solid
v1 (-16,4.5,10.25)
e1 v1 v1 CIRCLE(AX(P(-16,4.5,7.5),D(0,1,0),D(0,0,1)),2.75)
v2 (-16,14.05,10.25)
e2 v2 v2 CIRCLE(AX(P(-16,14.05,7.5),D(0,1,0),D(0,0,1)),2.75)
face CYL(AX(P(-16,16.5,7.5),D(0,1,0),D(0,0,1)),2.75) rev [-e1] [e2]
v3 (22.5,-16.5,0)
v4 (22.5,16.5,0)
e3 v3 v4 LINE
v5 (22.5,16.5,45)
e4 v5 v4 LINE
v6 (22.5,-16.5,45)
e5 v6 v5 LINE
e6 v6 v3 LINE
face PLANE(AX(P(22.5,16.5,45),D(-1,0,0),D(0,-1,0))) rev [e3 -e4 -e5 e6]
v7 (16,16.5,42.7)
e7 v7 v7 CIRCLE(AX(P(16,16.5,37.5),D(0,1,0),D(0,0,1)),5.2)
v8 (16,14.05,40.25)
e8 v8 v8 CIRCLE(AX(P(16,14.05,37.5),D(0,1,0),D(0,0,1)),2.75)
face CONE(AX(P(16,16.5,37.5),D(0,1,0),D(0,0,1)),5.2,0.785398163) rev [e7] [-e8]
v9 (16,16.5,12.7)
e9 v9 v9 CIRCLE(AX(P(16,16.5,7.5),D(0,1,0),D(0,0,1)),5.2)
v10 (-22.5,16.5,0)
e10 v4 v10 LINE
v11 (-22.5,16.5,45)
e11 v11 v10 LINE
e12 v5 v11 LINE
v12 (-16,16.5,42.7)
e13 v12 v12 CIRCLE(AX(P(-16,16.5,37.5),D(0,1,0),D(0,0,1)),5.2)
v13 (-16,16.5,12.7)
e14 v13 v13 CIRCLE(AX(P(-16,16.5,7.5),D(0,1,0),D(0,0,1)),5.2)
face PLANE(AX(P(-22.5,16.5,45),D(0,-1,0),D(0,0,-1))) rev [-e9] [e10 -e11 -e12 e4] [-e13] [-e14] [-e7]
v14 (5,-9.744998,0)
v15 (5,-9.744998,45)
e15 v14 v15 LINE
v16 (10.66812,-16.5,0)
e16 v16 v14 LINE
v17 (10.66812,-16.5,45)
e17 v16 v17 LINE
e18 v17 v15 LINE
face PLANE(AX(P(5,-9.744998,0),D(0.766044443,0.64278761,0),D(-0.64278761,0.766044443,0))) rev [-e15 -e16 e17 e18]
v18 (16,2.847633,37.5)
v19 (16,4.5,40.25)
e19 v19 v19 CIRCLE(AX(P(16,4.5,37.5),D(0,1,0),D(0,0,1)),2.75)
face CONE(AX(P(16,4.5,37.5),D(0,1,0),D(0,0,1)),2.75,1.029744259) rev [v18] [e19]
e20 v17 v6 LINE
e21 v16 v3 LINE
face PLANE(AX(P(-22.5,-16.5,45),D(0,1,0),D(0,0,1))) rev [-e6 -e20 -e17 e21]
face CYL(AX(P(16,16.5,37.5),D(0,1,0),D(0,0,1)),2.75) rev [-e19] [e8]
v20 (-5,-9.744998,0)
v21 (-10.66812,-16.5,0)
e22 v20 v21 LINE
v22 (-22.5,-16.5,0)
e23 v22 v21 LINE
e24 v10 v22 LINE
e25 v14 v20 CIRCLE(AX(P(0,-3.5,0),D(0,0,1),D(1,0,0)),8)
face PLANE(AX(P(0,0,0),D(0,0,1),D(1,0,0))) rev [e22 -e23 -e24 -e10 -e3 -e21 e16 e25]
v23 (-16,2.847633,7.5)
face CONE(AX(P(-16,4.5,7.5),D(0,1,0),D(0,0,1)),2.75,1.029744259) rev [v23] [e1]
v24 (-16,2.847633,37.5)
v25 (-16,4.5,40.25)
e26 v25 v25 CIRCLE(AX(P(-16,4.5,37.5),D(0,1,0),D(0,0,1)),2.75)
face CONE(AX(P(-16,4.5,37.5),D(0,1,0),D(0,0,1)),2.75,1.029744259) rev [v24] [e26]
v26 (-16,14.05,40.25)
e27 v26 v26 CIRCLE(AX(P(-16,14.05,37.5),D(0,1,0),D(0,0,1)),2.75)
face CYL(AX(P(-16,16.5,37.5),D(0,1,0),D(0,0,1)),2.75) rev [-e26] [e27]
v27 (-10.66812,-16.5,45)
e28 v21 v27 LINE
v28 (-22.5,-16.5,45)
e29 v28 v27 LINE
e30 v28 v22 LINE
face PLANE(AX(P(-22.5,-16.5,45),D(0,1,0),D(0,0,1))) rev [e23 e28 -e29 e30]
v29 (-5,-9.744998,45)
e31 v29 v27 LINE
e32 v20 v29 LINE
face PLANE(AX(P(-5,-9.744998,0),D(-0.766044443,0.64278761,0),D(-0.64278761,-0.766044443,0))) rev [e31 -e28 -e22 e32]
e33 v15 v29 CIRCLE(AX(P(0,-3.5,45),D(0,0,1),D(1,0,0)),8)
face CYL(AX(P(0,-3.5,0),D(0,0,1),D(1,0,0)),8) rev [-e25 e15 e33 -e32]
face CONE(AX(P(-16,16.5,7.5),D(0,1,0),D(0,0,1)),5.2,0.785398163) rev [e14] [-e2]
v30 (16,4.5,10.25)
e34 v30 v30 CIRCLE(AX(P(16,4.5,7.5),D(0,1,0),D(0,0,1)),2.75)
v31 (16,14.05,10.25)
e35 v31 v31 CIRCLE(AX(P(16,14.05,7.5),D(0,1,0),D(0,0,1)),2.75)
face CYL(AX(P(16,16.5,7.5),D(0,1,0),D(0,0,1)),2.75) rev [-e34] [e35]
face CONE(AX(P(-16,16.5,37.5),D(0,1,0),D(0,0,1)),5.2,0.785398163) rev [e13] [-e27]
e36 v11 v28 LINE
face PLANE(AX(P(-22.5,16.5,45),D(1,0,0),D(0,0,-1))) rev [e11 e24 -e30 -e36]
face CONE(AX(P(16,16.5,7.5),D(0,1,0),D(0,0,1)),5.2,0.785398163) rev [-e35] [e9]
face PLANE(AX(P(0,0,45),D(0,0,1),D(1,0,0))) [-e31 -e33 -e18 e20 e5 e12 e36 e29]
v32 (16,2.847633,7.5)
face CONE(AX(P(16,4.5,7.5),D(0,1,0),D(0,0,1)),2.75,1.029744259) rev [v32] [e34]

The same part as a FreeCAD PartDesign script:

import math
import FreeCAD as App
import Part
import Sketcher

V = App.Vector
Q = App.Units.Quantity

doc = App.newDocument("Part")
params = doc.addObject("Spreadsheet::Sheet", "Params")
for row, (alias, value) in enumerate([
    ("sketch1_width", "45 mm"),
    ("sketch1_height", "33 mm"),
    ("pad1_length", "45 mm"),
    ("sketch2_radius", "8 mm"),
    ("pocket1_length", "45 mm"),
    ("sketch3_diameter", "5.5 mm"),
    ("hole_diameter", "5.5 mm"),
    ("hole_depth", "12 mm"),
    ("hole_csink_diameter", "10.4 mm"),
], start=1):
    params.set(f"A{row}", alias)
    params.set(f"B{row}", "=" + value)
    params.setAlias(f"B{row}", alias)

body = doc.addObject("PartDesign::Body", "Body")

# Sketch on XY plane
sketch1 = body.newObject("Sketcher::SketchObject", "Sketch")
sketch1.AttachmentSupport = (doc.getObject("XY_Plane"), [""])
sketch1.MapMode = "FlatFace"
sketch1.addGeometry(Part.LineSegment(V(-22, 16, 0), V(-22, -16, 0)), False)
sketch1.addGeometry(Part.LineSegment(V(-22, -16, 0), V(22, -16, 0)), False)
sketch1.addGeometry(Part.LineSegment(V(22, -16, 0), V(22, 16, 0)), False)
sketch1.addGeometry(Part.LineSegment(V(22, 16, 0), V(-22, 16, 0)), False)
sketch1.addConstraint(Sketcher.Constraint("Coincident", 0, 2, 1, 1))
sketch1.addConstraint(Sketcher.Constraint("Coincident", 1, 2, 2, 1))
sketch1.addConstraint(Sketcher.Constraint("Coincident", 2, 2, 3, 1))
sketch1.addConstraint(Sketcher.Constraint("Coincident", 3, 2, 0, 1))
sketch1.addConstraint(Sketcher.Constraint("Vertical", 0))
sketch1.addConstraint(Sketcher.Constraint("Horizontal", 1))
sketch1.addConstraint(Sketcher.Constraint("Vertical", 2))
sketch1.addConstraint(Sketcher.Constraint("Horizontal", 3))
sketch1.addConstraint(Sketcher.Constraint("Symmetric", 0, 2, 2, 2, -1, 1))
sketch1.addConstraint(Sketcher.Constraint("DistanceX", 1, 1, 1, 2, 45.0))
sketch1.addConstraint(Sketcher.Constraint("DistanceY", 0, 2, 0, 1, 33.0))
sketch1.setExpression("Constraints[9]", "Params.sketch1_width")
sketch1.setExpression("Constraints[10]", "Params.sketch1_height")
pad1 = body.newObject("PartDesign::Pad", "Pad")
pad1.Profile = sketch1
pad1.setExpression("Length", "Params.pad1_length")

# Sketch on XY plane
sketch2 = body.newObject("Sketcher::SketchObject", "Sketch001")
sketch2.AttachmentSupport = (doc.getObject("XY_Plane"), [""])
sketch2.MapMode = "FlatFace"
sketch2.AttachmentOffset = App.Placement(V(0, 0, 45), App.Rotation())
sketch2.addGeometry(Part.LineSegment(V(-5, -10, 0), V(-11, -16, 0)), False)
sketch2.addGeometry(Part.LineSegment(V(-11, -16, 0), V(11, -16, 0)), False)
sketch2.addGeometry(Part.LineSegment(V(11, -16, 0), V(5, -10, 0)), False)
sketch2.addGeometry(Part.ArcOfCircle(Part.Circle(V(0, -4, 0), V(0, 0, 1), 8), math.radians(-51), math.radians(231)), False)
sketch2.addConstraint(Sketcher.Constraint("Coincident", 0, 2, 1, 1))
sketch2.addConstraint(Sketcher.Constraint("Coincident", 1, 2, 2, 1))
sketch2.addConstraint(Sketcher.Constraint("Coincident", 2, 2, 3, 1))
sketch2.addConstraint(Sketcher.Constraint("Coincident", 3, 2, 0, 1))
sketch2.addConstraint(Sketcher.Constraint("Horizontal", 1))
sketch2.addConstraint(Sketcher.Constraint("Symmetric", 2, 2, 3, 2, -2))
sketch2.addConstraint(Sketcher.Constraint("Equal", 0, 2))
sketch2.addConstraint(Sketcher.Constraint("Radius", 3, 8.0))
sketch2.addConstraint(Sketcher.Constraint("Angle", 0, Q("-130 deg")))
sketch2.addConstraint(Sketcher.Constraint("DistanceX", -1, 1, 2, 2, 5.0))
sketch2.addConstraint(Sketcher.Constraint("DistanceY", 0, 2, 3, 3, 13.0))
sketch2.addConstraint(Sketcher.Constraint("DistanceY", 3, 3, -1, 1, 3.5))
sketch2.setExpression("Constraints[7]", "Params.sketch2_radius")
pocket1 = body.newObject("PartDesign::Pocket", "Pocket")
pocket1.Profile = sketch2
pocket1.setExpression("Length", "Params.pocket1_length")

# Sketch on XZ plane
sketch3 = body.newObject("Sketcher::SketchObject", "Sketch002")
sketch3.AttachmentSupport = (doc.getObject("XZ_Plane"), [""])
sketch3.MapMode = "FlatFace"
sketch3.AttachmentOffset = App.Placement(V(0, 0, -16.5), App.Rotation())
sketch3.addGeometry(Part.Circle(V(-16, 37.5, 0), V(0, 0, 1), 2.8), False)
sketch3.addGeometry(Part.Circle(V(-16, 7.5, 0), V(0, 0, 1), 2.8), False)
sketch3.addGeometry(Part.Circle(V(16, 7.5, 0), V(0, 0, 1), 2.8), False)
sketch3.addGeometry(Part.Circle(V(16, 37.5, 0), V(0, 0, 1), 2.8), False)
sketch3.addConstraint(Sketcher.Constraint("Equal", 0, 1))
sketch3.addConstraint(Sketcher.Constraint("Equal", 1, 2))
sketch3.addConstraint(Sketcher.Constraint("Equal", 2, 3))
sketch3.addConstraint(Sketcher.Constraint("Symmetric", 1, 3, 2, 3, -2))
sketch3.addConstraint(Sketcher.Constraint("Symmetric", 0, 3, 3, 3, -2))
sketch3.addConstraint(Sketcher.Constraint("Vertical", 0, 3, 1, 3))
sketch3.addConstraint(Sketcher.Constraint("Diameter", 0, 5.5))
sketch3.addConstraint(Sketcher.Constraint("DistanceX", 0, 3, -1, 1, 16.0))
sketch3.addConstraint(Sketcher.Constraint("DistanceY", 1, 3, 0, 3, 30.0))
sketch3.addConstraint(Sketcher.Constraint("DistanceY", -1, 1, 0, 3, 37.5))
sketch3.setExpression("Constraints[6]", "Params.sketch3_diameter")
doc.recompute()
hole = body.newObject("PartDesign::Hole", "Hole")
hole.Profile = sketch3
hole.ThreadType = "None"
hole.setExpression("Diameter", "Params.hole_diameter")
hole.DepthType = "Dimension"
hole.setExpression("Depth", "Params.hole_depth")
hole.DrillPoint = "Angled"
hole.DrillPointAngle = 118
hole.HoleCutType = "Countersink"
hole.setExpression("HoleCutDiameter", "Params.hole_csink_diameter")
hole.HoleCutCountersinkAngle = 90
hole.Reversed = True

doc.recompute()
